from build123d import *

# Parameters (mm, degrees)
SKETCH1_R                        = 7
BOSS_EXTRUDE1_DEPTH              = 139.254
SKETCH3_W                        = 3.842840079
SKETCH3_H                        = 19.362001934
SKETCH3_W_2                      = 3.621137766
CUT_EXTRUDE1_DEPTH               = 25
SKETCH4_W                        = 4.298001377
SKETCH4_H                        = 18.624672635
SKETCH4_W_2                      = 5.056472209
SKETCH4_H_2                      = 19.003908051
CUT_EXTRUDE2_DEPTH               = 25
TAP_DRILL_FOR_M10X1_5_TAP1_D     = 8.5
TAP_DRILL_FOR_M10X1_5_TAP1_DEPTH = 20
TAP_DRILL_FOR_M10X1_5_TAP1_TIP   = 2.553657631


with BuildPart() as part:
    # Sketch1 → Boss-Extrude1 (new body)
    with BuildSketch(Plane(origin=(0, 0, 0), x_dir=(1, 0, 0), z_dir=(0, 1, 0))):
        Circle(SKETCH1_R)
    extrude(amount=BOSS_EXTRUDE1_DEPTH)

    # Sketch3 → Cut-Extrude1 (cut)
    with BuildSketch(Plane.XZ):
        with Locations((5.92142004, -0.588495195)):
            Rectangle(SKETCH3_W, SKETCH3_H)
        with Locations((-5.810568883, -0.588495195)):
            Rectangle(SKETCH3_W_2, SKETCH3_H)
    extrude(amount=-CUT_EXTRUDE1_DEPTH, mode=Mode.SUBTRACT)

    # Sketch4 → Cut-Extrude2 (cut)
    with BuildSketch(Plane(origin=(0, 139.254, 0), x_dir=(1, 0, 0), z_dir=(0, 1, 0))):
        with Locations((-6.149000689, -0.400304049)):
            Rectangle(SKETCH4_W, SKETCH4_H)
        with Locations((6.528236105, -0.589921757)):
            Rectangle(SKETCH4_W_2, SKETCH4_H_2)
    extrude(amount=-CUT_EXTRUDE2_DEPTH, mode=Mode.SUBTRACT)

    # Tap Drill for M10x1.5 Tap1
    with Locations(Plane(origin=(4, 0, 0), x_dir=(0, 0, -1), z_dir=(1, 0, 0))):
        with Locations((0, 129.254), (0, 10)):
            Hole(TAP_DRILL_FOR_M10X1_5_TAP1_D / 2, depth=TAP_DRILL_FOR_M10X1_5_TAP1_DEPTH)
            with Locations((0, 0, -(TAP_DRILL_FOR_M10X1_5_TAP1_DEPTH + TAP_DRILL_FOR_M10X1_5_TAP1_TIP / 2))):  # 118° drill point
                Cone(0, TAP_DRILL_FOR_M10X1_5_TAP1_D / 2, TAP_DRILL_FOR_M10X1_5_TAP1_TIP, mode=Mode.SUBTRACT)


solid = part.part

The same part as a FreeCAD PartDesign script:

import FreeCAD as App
import Part
import Sketcher

V = App.Vector


def add_polygon(sketch, points):
    """Adds a closed chain of lines whose ends are joined by coincident constraints."""
    first, n = sketch.GeometryCount, len(points)
    for a, b in zip(points, points[1:] + points[:1]):
        sketch.addGeometry(Part.LineSegment(App.Vector(*a, 0), App.Vector(*b, 0)), False)
    for i in range(n):
        sketch.addConstraint(Sketcher.Constraint("Coincident", first + i, 2, first + (i + 1) % n, 1))

doc = App.newDocument("Part")
body = doc.addObject("PartDesign::Body", "Body")

# Sketch on XZ plane
sketch1 = body.newObject("Sketcher::SketchObject", "Sketch")
sketch1.AttachmentSupport = (doc.getObject("XZ_Plane"), [""])
sketch1.MapMode = "FlatFace"
sketch1.addGeometry(Part.Circle(V(0, 0, 0), V(0, 0, 1), 7), False)
sketch1.addConstraint(Sketcher.Constraint("Coincident", 0, 3, -1, 1))
sketch1.addConstraint(Sketcher.Constraint("Diameter", 0, 14.0))
pad1 = body.newObject("PartDesign::Pad", "Pad")
pad1.Profile = sketch1
pad1.Length = 139.254
pad1.Reversed = True

# Sketch on XZ plane
sketch2 = body.newObject("Sketcher::SketchObject", "Sketch001")
sketch2.AttachmentSupport = (doc.getObject("XZ_Plane"), [""])
sketch2.MapMode = "FlatFace"
add_polygon(sketch2, [(4, 9.092506), (4, -10.269496), (7.84284, -10.269496), (7.84284, 9.092506)])  # lines 0-3
add_polygon(sketch2, [(-7.621138, 9.092506), (-7.621138, -10.269496), (-4, -10.269496), (-4, 9.092506)])  # lines 4-7
sketch2.addConstraint(Sketcher.Constraint("Vertical", 0))
sketch2.addConstraint(Sketcher.Constraint("Horizontal", 1))
sketch2.addConstraint(Sketcher.Constraint("Vertical", 2))
sketch2.addConstraint(Sketcher.Constraint("Horizontal", 3))
sketch2.addConstraint(Sketcher.Constraint("Vertical", 4))
sketch2.addConstraint(Sketcher.Constraint("Horizontal", 5))
sketch2.addConstraint(Sketcher.Constraint("Vertical", 6))
sketch2.addConstraint(Sketcher.Constraint("Horizontal", 7))
sketch2.addConstraint(Sketcher.Constraint("Symmetric", 0, 2, 5, 2, -2))
sketch2.addConstraint(Sketcher.Constraint("Horizontal", 3, 2, 6, 2))
sketch2.addConstraint(Sketcher.Constraint("DistanceX", -1, 1, 0, 2, 4.0))
sketch2.addConstraint(Sketcher.Constraint("DistanceY", 0, 2, 0, 1, 19.362002))
sketch2.addConstraint(Sketcher.Constraint("DistanceX", 1, 1, 1, 2, 3.84284))
sketch2.addConstraint(Sketcher.Constraint("DistanceX", 5, 1, 5, 2, 3.621138))
sketch2.addConstraint(Sketcher.Constraint("DistanceY", 0, 2, -1, 1, 10.269496))
pocket1 = body.newObject("PartDesign::Pocket", "Pocket")
pocket1.Profile = sketch2
pocket1.Length = 25

# Sketch on XZ plane
sketch3 = body.newObject("Sketcher::SketchObject", "Sketch002")
sketch3.AttachmentSupport = (doc.getObject("XZ_Plane"), [""])
sketch3.MapMode = "FlatFace"
sketch3.AttachmentOffset = App.Placement(V(0, 0, -139.254), App.Rotation())
add_polygon(sketch3, [(-8.298001, -8.912032), (-8.298001, 9.71264), (-4, 9.71264), (-4, -8.912032)])  # lines 0-3
add_polygon(sketch3, [(4, -8.912032), (4, 10.091876), (9.056472, 10.091876), (9.056472, -8.912032)])  # lines 4-7
sketch3.addConstraint(Sketcher.Constraint("Vertical", 0))
sketch3.addConstraint(Sketcher.Constraint("Horizontal", 1))
sketch3.addConstraint(Sketcher.Constraint("Vertical", 2))
sketch3.addConstraint(Sketcher.Constraint("Horizontal", 3))
sketch3.addConstraint(Sketcher.Constraint("Vertical", 4))
sketch3.addConstraint(Sketcher.Constraint("Horizontal", 5))
sketch3.addConstraint(Sketcher.Constraint("Vertical", 6))
sketch3.addConstraint(Sketcher.Constraint("Horizontal", 7))
sketch3.addConstraint(Sketcher.Constraint("Symmetric", 2, 2, 7, 2, -2))
sketch3.addConstraint(Sketcher.Constraint("DistanceX", 1, 2, -1, 1, 4.0))
sketch3.addConstraint(Sketcher.Constraint("DistanceX", 1, 1, 1, 2, 4.298001))
sketch3.addConstraint(Sketcher.Constraint("DistanceY", 4, 1, 4, 2, 19.003908))
sketch3.addConstraint(Sketcher.Constraint("DistanceX", 5, 1, 5, 2, 5.056472))
sketch3.addConstraint(Sketcher.Constraint("DistanceY", 0, 1, 0, 2, 18.624673))
sketch3.addConstraint(Sketcher.Constraint("DistanceY", -1, 1, 0, 2, 9.71264))
pocket2 = body.newObject("PartDesign::Pocket", "Pocket001")
pocket2.Profile = sketch3
pocket2.Length = 25
pocket2.Reversed = True

# Sketch on YZ plane
sketch4 = body.newObject("Sketcher::SketchObject", "Sketch003")
sketch4.AttachmentSupport = (doc.getObject("YZ_Plane"), [""])
sketch4.MapMode = "FlatFace"
sketch4.AttachmentOffset = App.Placement(V(0, 0, 4), App.Rotation())
sketch4.addGeometry(Part.Circle(V(129.254, 0, 0), V(0, 0, 1), 4.25), False)
sketch4.addGeometry(Part.Circle(V(10, 0, 0), V(0, 0, 1), 4.25), False)
sketch4.addConstraint(Sketcher.Constraint("Equal", 0, 1))
sketch4.addConstraint(Sketcher.Constraint("PointOnObject", 0, 3, -1))
sketch4.addConstraint(Sketcher.Constraint("PointOnObject", 1, 3, -1))
sketch4.addConstraint(Sketcher.Constraint("Diameter", 0, 8.5))
sketch4.addConstraint(Sketcher.Constraint("DistanceX", -1, 1, 1, 3, 10.0))
sketch4.addConstraint(Sketcher.Constraint("DistanceX", -1, 1, 0, 3, 129.254))
doc.recompute()
hole = body.newObject("PartDesign::Hole", "Hole")
hole.Profile = sketch4
hole.ThreadType = "None"
hole.Diameter = 8.5
hole.DepthType = "Dimension"
hole.Depth = 20
hole.DrillPoint = "Angled"
hole.DrillPointAngle = 118

doc.recompute()
